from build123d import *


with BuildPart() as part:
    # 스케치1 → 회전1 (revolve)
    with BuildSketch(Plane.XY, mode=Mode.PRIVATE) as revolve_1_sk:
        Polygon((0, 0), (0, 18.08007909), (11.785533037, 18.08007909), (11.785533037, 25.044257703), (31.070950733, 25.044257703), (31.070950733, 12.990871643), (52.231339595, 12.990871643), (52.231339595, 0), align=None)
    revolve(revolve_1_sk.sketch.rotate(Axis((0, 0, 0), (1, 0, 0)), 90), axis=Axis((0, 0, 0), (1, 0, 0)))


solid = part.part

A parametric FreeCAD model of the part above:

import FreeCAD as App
import Part
import Sketcher
from FreeCAD import Vector

doc = App.newDocument("Part")
body = doc.addObject("PartDesign::Body", "Body")

# Sketch on XY plane
sketch1 = body.newObject("Sketcher::SketchObject", "Sketch")
sketch1.AttachmentSupport = (doc.getObject("XY_Plane"), [""])
sketch1.MapMode = "FlatFace"
sketch1.addGeometry(Part.LineSegment(Vector(0, 18, 0), Vector(0, 0, 0)), False)
sketch1.addGeometry(Part.LineSegment(Vector(0, 0, 0), Vector(52, 0, 0)), False)
sketch1.addGeometry(Part.LineSegment(Vector(52, 0, 0), Vector(52, 13, 0)), False)
sketch1.addGeometry(Part.LineSegment(Vector(52, 13, 0), Vector(31, 13, 0)), False)
sketch1.addGeometry(Part.LineSegment(Vector(31, 13, 0), Vector(31, 25, 0)), False)
sketch1.addGeometry(Part.LineSegment(Vector(31, 25, 0), Vector(12, 25, 0)), False)
sketch1.addGeometry(Part.LineSegment(Vector(12, 25, 0), Vector(12, 18, 0)), False)
sketch1.addGeometry(Part.LineSegment(Vector(12, 18, 0), Vector(0, 18, 0)), False)
sketch1.addConstraint(Sketcher.Constraint("Coincident", 0, 2, 1, 1))
sketch1.addConstraint(Sketcher.Constraint("Coincident", 1, 2, 2, 1))
sketch1.addConstraint(Sketcher.Constraint("Coincident", 2, 2, 3, 1))
sketch1.addConstraint(Sketcher.Constraint("Coincident", 3, 2, 4, 1))
sketch1.addConstraint(Sketcher.Constraint("Coincident", 4, 2, 5, 1))
sketch1.addConstraint(Sketcher.Constraint("Coincident", 5, 2, 6, 1))
sketch1.addConstraint(Sketcher.Constraint("Coincident", 6, 2, 7, 1))
sketch1.addConstraint(Sketcher.Constraint("Coincident", 7, 2, 0, 1))
sketch1.addConstraint(Sketcher.Constraint("Vertical", 0))
sketch1.addConstraint(Sketcher.Constraint("Horizontal", 1))
sketch1.addConstraint(Sketcher.Constraint("Vertical", 2))
sketch1.addConstraint(Sketcher.Constraint("Horizontal", 3))
sketch1.addConstraint(Sketcher.Constraint("Vertical", 4))
sketch1.addConstraint(Sketcher.Constraint("Horizontal", 5))
sketch1.addConstraint(Sketcher.Constraint("Vertical", 6))
sketch1.addConstraint(Sketcher.Constraint("Horizontal", 7))
sketch1.addConstraint(Sketcher.Constraint("Coincident", 0, 2, -1, 1))
sketch1.addConstraint(Sketcher.Constraint("DistanceX", 1, 1, 1, 2, 52.23134))
sketch1.addConstraint(Sketcher.Constraint("DistanceX", 3, 2, 3, 1, 21.160389))
sketch1.addConstraint(Sketcher.Constraint("DistanceY", 0, 2, 0, 1, 18.080079))
sketch1.addConstraint(Sketcher.Constraint("DistanceY", 2, 1, 2, 2, 12.990872))
sketch1.addConstraint(Sketcher.Constraint("DistanceY", 6, 2, 6, 1, 6.964179))
sketch1.addConstraint(Sketcher.Constraint("DistanceX", 5, 2, 5, 1, 19.285418))
revolution = body.newObject("PartDesign::Revolution", "Revolution")
revolution.Profile = sketch1
revolution.ReferenceAxis = (sketch1, ["H_Axis"])
revolution.Angle = 360

doc.recompute()
